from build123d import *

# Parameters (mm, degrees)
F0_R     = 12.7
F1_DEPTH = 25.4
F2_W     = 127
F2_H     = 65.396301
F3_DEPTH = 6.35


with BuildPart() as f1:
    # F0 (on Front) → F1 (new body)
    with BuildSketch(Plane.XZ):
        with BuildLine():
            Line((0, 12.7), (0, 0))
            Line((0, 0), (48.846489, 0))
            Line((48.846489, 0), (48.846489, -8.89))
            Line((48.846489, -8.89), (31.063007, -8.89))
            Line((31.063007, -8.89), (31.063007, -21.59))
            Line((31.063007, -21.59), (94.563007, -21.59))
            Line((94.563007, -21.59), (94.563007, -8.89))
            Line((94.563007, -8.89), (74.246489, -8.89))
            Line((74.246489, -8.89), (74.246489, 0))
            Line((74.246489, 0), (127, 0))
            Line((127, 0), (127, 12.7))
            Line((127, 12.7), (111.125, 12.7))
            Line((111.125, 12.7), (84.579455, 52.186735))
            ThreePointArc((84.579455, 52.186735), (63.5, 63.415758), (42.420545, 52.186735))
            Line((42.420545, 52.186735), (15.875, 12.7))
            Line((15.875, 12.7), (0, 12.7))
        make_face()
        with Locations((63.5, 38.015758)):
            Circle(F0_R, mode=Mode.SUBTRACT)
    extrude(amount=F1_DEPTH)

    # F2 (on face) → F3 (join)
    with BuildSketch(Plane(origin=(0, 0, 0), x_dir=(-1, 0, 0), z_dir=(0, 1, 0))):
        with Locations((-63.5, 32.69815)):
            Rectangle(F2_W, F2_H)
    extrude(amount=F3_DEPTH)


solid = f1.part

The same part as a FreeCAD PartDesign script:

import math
import FreeCAD as App
import Part
import Sketcher
Q = App.Units.Quantity


def add_polygon(sketch, points):
    """Adds a closed chain of lines whose ends are joined by coincident constraints."""
    first, n = sketch.GeometryCount, len(points)
    for a, b in zip(points, points[1:] + points[:1]):
        sketch.addGeometry(Part.LineSegment(App.Vector(*a, 0), App.Vector(*b, 0)), False)
    for i in range(n):
        sketch.addConstraint(Sketcher.Constraint("Coincident", first + i, 2, first + (i + 1) % n, 1))

doc = App.newDocument("Part")
body = doc.addObject("PartDesign::Body", "Body")

sketch1 = body.newObject("Sketcher::SketchObject", "Sketch")
sketch1.AttachmentSupport = (doc.getObject("XZ_Plane"), [""])
sketch1.MapMode = "FlatFace"
sketch1.addGeometry(Part.LineSegment(App.Vector(0, 13, 0), App.Vector(0, 0, 0)), False)
sketch1.addGeometry(Part.LineSegment(App.Vector(0, 0, 0), App.Vector(49, 0, 0)), False)
sketch1.addGeometry(Part.LineSegment(App.Vector(49, 0, 0), App.Vector(49, -9, 0)), False)
sketch1.addGeometry(Part.LineSegment(App.Vector(49, -9, 0), App.Vector(31, -9, 0)), False)
sketch1.addGeometry(Part.LineSegment(App.Vector(31, -9, 0), App.Vector(31, -22, 0)), False)
sketch1.addGeometry(Part.LineSegment(App.Vector(31, -22, 0), App.Vector(95, -22, 0)), False)
sketch1.addGeometry(Part.LineSegment(App.Vector(95, -22, 0), App.Vector(95, -9, 0)), False)
sketch1.addGeometry(Part.LineSegment(App.Vector(95, -9, 0), App.Vector(74, -9, 0)), False)
sketch1.addGeometry(Part.LineSegment(App.Vector(74, -9, 0), App.Vector(74, 0, 0)), False)
sketch1.addGeometry(Part.LineSegment(App.Vector(74, 0, 0), App.Vector(127, 0, 0)), False)
sketch1.addGeometry(Part.LineSegment(App.Vector(127, 0, 0), App.Vector(127, 13, 0)), False)
sketch1.addGeometry(Part.LineSegment(App.Vector(127, 13, 0), App.Vector(111, 13, 0)), False)
sketch1.addGeometry(Part.LineSegment(App.Vector(111, 13, 0), App.Vector(85, 52, 0)), False)
sketch1.addGeometry(Part.ArcOfCircle(Part.Circle(App.Vector(64, 38, 0), App.Vector(0, 0, 1), 25), math.radians(34), math.radians(146)), False)
sketch1.addGeometry(Part.LineSegment(App.Vector(42, 52, 0), App.Vector(16, 13, 0)), False)
sketch1.addGeometry(Part.LineSegment(App.Vector(16, 13, 0), App.Vector(0, 13, 0)), False)
sketch1.addGeometry(Part.Circle(App.Vector(64, 38, 0), App.Vector(0, 0, 1), 13), False)
sketch1.addConstraint(Sketcher.Constraint("Coincident", 0, 2, 1, 1))
sketch1.addConstraint(Sketcher.Constraint("Coincident", 1, 2, 2, 1))
sketch1.addConstraint(Sketcher.Constraint("Coincident", 2, 2, 3, 1))
sketch1.addConstraint(Sketcher.Constraint("Coincident", 3, 2, 4, 1))
sketch1.addConstraint(Sketcher.Constraint("Coincident", 4, 2, 5, 1))
sketch1.addConstraint(Sketcher.Constraint("Coincident", 5, 2, 6, 1))
sketch1.addConstraint(Sketcher.Constraint("Coincident", 6, 2, 7, 1))
sketch1.addConstraint(Sketcher.Constraint("Coincident", 7, 2, 8, 1))
sketch1.addConstraint(Sketcher.Constraint("Coincident", 8, 2, 9, 1))
sketch1.addConstraint(Sketcher.Constraint("Coincident", 9, 2, 10, 1))
sketch1.addConstraint(Sketcher.Constraint("Coincident", 10, 2, 11, 1))
sketch1.addConstraint(Sketcher.Constraint("Coincident", 11, 2, 12, 1))
sketch1.addConstraint(Sketcher.Constraint("Tangent", 12, 2, 13, 1))
sketch1.addConstraint(Sketcher.Constraint("Tangent", 13, 2, 14, 1))
sketch1.addConstraint(Sketcher.Constraint("Coincident", 14, 2, 15, 1))
sketch1.addConstraint(Sketcher.Constraint("Coincident", 15, 2, 0, 1))
sketch1.addConstraint(Sketcher.Constraint("Vertical", 0))
sketch1.addConstraint(Sketcher.Constraint("Horizontal", 1))
sketch1.addConstraint(Sketcher.Constraint("Vertical", 2))
sketch1.addConstraint(Sketcher.Constraint("Horizontal", 3))
sketch1.addConstraint(Sketcher.Constraint("Vertical", 4))
sketch1.addConstraint(Sketcher.Constraint("Horizontal", 5))
sketch1.addConstraint(Sketcher.Constraint("Vertical", 6))
sketch1.addConstraint(Sketcher.Constraint("Horizontal", 7))
sketch1.addConstraint(Sketcher.Constraint("Vertical", 8))
sketch1.addConstraint(Sketcher.Constraint("Horizontal", 9))
sketch1.addConstraint(Sketcher.Constraint("Vertical", 10))
sketch1.addConstraint(Sketcher.Constraint("Horizontal", 11))
sketch1.addConstraint(Sketcher.Constraint("Horizontal", 15))
sketch1.addConstraint(Sketcher.Constraint("Coincident", 0, 2, -1, 1))
sketch1.addConstraint(Sketcher.Constraint("Coincident", 16, 3, 13, 3))
sketch1.addConstraint(Sketcher.Constraint("PointOnObject", 8, 2, -1))
sketch1.addConstraint(Sketcher.Constraint("Horizontal", 3, 2, 6, 2))
sketch1.addConstraint(Sketcher.Constraint("Horizontal", 12, 2, 13, 2))
sketch1.addConstraint(Sketcher.Constraint("Horizontal", 11, 2, 14, 2))
sketch1.addConstraint(Sketcher.Constraint("Equal", 11, 15))
sketch1.addConstraint(Sketcher.Constraint("Equal", 0, 4))
sketch1.addConstraint(Sketcher.Constraint("Diameter", 16, Q("1 in")))
sketch1.addConstraint(Sketcher.Constraint("Radius", 13, Q("1 in")))
sketch1.addConstraint(Sketcher.Constraint("DistanceX", 5, 1, 5, 2, Q("2.5 in")))
sketch1.addConstraint(Sketcher.Constraint("DistanceY", 0, 2, 0, 1, Q("0.5 in")))
sketch1.addConstraint(Sketcher.Constraint("DistanceX", -1, 1, 9, 2, Q("5 in")))
sketch1.addConstraint(Sketcher.Constraint("DistanceX", 2, 2, 7, 2, Q("1 in")))
sketch1.addConstraint(Sketcher.Constraint("DistanceY", 2, 2, 2, 1, Q("0.35 in")))
sketch1.addConstraint(Sketcher.Constraint("DistanceX", 11, 2, 11, 1, Q("0.625 in")))
sketch1.addConstraint(Sketcher.Constraint("DistanceX", -1, 1, 12, 2, Q("3.3298998 in")))
sketch1.addConstraint(Sketcher.Constraint("DistanceX", 1, 1, 1, 2, Q("48.846489 mm")))
sketch1.addConstraint(Sketcher.Constraint("DistanceX", 3, 2, 3, 1, Q("17.783482 mm")))
pad1 = body.newObject("PartDesign::Pad", "Pad")
pad1.Profile = sketch1
pad1.Length = Q("1 in")

sketch2 = body.newObject("Sketcher::SketchObject", "Sketch001")
sketch2.AttachmentSupport = (doc.getObject("XZ_Plane"), [""])
sketch2.MapMode = "FlatFace"
add_polygon(sketch2, [(127, 65), (127, 0), (0, 0), (0, 65)])
sketch2.addConstraint(Sketcher.Constraint("Vertical", 0))
sketch2.addConstraint(Sketcher.Constraint("Horizontal", 1))
sketch2.addConstraint(Sketcher.Constraint("Vertical", 2))
sketch2.addConstraint(Sketcher.Constraint("Horizontal", 3))
sketch2.addConstraint(Sketcher.Constraint("Coincident", 1, 2, -1, 1))
sketch2.addConstraint(Sketcher.Constraint("DistanceX", 1, 2, 1, 1, Q("5 in")))
sketch2.addConstraint(Sketcher.Constraint("DistanceY", 0, 2, 0, 1, Q("65.396301 mm")))
pad2 = body.newObject("PartDesign::Pad", "Pad001")
pad2.Profile = sketch2
pad2.Length = Q("0.25 in")
pad2.Reversed = True

doc.recompute()
